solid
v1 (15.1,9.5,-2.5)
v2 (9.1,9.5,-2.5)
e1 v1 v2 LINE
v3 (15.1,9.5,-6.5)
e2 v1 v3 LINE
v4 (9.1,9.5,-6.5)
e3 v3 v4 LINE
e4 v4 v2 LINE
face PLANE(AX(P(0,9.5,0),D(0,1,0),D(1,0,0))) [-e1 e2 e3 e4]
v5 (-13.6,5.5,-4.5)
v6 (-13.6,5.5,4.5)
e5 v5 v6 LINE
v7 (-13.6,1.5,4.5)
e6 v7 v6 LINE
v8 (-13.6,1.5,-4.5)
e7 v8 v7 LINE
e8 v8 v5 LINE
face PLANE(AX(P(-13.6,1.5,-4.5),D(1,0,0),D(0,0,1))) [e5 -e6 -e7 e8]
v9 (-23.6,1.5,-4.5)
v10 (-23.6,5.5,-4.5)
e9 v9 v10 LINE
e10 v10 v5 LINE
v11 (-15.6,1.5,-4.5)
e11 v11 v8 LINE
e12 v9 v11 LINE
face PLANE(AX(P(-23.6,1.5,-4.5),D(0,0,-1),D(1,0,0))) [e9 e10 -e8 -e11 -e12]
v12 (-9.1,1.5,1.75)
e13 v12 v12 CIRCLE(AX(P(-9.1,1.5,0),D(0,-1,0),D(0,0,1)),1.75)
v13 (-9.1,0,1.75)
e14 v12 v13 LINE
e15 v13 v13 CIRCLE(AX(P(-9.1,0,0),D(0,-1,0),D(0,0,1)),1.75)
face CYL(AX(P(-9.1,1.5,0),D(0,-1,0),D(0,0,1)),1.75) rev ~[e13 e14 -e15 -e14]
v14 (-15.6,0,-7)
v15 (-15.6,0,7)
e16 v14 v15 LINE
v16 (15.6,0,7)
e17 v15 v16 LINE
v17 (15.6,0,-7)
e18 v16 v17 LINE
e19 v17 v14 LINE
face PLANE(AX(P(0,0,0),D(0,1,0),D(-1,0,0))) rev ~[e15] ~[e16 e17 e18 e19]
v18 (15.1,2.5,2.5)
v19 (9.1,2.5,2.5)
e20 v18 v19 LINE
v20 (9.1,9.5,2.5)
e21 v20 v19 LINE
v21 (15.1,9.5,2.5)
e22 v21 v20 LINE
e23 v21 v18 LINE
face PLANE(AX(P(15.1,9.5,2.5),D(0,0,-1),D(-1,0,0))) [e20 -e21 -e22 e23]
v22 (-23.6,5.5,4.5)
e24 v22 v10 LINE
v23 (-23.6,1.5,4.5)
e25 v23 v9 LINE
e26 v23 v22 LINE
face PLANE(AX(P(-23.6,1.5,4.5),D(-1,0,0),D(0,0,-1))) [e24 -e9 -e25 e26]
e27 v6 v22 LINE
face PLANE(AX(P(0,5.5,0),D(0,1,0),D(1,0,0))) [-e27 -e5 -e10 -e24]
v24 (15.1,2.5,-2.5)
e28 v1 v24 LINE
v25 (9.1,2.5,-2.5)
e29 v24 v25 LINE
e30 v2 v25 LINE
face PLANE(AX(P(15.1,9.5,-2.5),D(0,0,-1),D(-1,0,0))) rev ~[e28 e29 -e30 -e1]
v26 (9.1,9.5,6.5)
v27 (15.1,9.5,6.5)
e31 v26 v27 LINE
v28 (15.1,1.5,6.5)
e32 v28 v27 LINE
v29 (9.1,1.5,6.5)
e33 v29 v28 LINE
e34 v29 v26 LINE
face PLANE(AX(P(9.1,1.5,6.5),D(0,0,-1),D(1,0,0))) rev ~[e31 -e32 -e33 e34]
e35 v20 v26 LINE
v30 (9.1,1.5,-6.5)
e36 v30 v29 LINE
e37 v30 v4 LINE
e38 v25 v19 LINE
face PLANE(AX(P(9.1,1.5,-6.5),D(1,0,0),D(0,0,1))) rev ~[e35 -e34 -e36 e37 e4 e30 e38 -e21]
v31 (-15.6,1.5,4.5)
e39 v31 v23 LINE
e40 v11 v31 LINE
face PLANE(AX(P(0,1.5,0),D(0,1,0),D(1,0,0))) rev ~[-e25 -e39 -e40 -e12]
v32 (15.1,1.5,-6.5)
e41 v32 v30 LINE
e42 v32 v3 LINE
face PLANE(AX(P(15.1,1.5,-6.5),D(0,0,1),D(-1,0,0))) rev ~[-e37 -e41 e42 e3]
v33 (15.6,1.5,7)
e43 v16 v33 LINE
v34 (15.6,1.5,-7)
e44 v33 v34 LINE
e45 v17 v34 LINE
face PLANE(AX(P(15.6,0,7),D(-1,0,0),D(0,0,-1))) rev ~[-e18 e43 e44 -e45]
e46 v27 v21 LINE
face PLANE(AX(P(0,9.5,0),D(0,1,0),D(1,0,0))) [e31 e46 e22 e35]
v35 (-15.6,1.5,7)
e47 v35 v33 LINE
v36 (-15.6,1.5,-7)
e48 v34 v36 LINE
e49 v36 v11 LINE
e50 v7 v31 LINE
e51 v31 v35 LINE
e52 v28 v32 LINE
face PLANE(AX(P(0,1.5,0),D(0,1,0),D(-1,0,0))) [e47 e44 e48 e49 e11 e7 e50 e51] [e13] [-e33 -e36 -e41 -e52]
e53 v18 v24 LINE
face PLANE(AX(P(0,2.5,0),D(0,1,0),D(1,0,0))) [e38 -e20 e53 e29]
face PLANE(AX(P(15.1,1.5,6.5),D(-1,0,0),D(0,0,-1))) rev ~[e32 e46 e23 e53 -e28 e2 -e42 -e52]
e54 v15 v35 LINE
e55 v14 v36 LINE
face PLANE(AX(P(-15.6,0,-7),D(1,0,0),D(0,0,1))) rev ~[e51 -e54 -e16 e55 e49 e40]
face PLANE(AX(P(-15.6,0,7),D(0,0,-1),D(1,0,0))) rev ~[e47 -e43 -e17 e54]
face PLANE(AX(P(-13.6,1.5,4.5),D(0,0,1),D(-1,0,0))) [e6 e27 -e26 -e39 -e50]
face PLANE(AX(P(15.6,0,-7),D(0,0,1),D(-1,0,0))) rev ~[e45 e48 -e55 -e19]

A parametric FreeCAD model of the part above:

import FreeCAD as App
import Part
import Sketcher
Q = App.Units.Quantity

doc = App.newDocument("Part")
body = doc.addObject("PartDesign::Body", "Body")

sketch1 = body.newObject("Sketcher::SketchObject", "Sketch")
sketch1.AttachmentSupport = (doc.getObject("XZ_Plane"), [""])
sketch1.MapMode = "FlatFace"
sketch1.addGeometry(Part.LineSegment(App.Vector(-15.6, -7, 0), App.Vector(-15.6, 7, 0)), False)
sketch1.addGeometry(Part.LineSegment(App.Vector(-15.6, 7, 0), App.Vector(15.6, 7, 0)), False)
sketch1.addGeometry(Part.LineSegment(App.Vector(15.6, 7, 0), App.Vector(15.6, -7, 0)), False)
sketch1.addGeometry(Part.LineSegment(App.Vector(15.6, -7, 0), App.Vector(-15.6, -7, 0)), False)
sketch1.addConstraint(Sketcher.Constraint("Coincident", 0, 2, 1, 1))
sketch1.addConstraint(Sketcher.Constraint("Coincident", 1, 2, 2, 1))
sketch1.addConstraint(Sketcher.Constraint("Coincident", 2, 2, 3, 1))
sketch1.addConstraint(Sketcher.Constraint("Coincident", 3, 2, 0, 1))
sketch1.addConstraint(Sketcher.Constraint("Vertical", 0))
sketch1.addConstraint(Sketcher.Constraint("Horizontal", 1))
sketch1.addConstraint(Sketcher.Constraint("Vertical", 2))
sketch1.addConstraint(Sketcher.Constraint("Horizontal", 3))
sketch1.addConstraint(Sketcher.Constraint("Symmetric", 0, 2, 2, 2, -1, 1))
sketch1.addConstraint(Sketcher.Constraint("DistanceY", 0, 1, 0, 2, Q("14 mm")))
sketch1.addConstraint(Sketcher.Constraint("DistanceX", 1, 1, 1, 2, Q("31.2 mm")))
pad1 = body.newObject("PartDesign::Pad", "Pad")
pad1.Profile = sketch1
pad1.Length = 1.5
pad1.Reversed = True

sketch2 = body.newObject("Sketcher::SketchObject", "Sketch001")
sketch2.AttachmentSupport = (doc.getObject("XZ_Plane"), [""])
sketch2.MapMode = "FlatFace"
sketch2.AttachmentOffset = App.Placement(App.Vector(0, 0, -1.5), App.Rotation())
sketch2.addGeometry(Part.LineSegment(App.Vector(9.1, -6.5, 0), App.Vector(9.1, 6.5, 0)), False)
sketch2.addGeometry(Part.LineSegment(App.Vector(9.1, 6.5, 0), App.Vector(15.1, 6.5, 0)), False)
sketch2.addGeometry(Part.LineSegment(App.Vector(15.1, 6.5, 0), App.Vector(15.1, -6.5, 0)), False)
sketch2.addGeometry(Part.LineSegment(App.Vector(15.1, -6.5, 0), App.Vector(9.1, -6.5, 0)), False)
sketch2.addConstraint(Sketcher.Constraint("Coincident", 0, 2, 1, 1))
sketch2.addConstraint(Sketcher.Constraint("Coincident", 1, 2, 2, 1))
sketch2.addConstraint(Sketcher.Constraint("Coincident", 2, 2, 3, 1))
sketch2.addConstraint(Sketcher.Constraint("Coincident", 3, 2, 0, 1))
sketch2.addConstraint(Sketcher.Constraint("Vertical", 0))
sketch2.addConstraint(Sketcher.Constraint("Horizontal", 1))
sketch2.addConstraint(Sketcher.Constraint("Vertical", 2))
sketch2.addConstraint(Sketcher.Constraint("Horizontal", 3))
sketch2.addConstraint(Sketcher.Constraint("DistanceX", 1, 1, 1, 2, Q("6 mm")))
sketch2.addConstraint(Sketcher.Constraint("DistanceY", 0, 1, 0, 2, Q("13 mm")))
sketch2.addConstraint(Sketcher.Constraint("DistanceX", -1, 1, 0, 2, Q("9.1 mm")))
sketch2.addConstraint(Sketcher.Constraint("DistanceY", -1, 1, 0, 2, Q("6.5 mm")))
pad2 = body.newObject("PartDesign::Pad", "Pad001")
pad2.Profile = sketch2
pad2.Length = 8
pad2.Reversed = True

sketch3 = body.newObject("Sketcher::SketchObject", "Sketch002")
sketch3.AttachmentSupport = (doc.getObject("XZ_Plane"), [""])
sketch3.MapMode = "FlatFace"
sketch3.AttachmentOffset = App.Placement(App.Vector(0, 0, -9.5), App.Rotation())
sketch3.addGeometry(Part.LineSegment(App.Vector(9.1, -2.5, 0), App.Vector(9.1, 2.5, 0)), False)
sketch3.addGeometry(Part.LineSegment(App.Vector(9.1, 2.5, 0), App.Vector(15.1, 2.5, 0)), False)
sketch3.addGeometry(Part.LineSegment(App.Vector(15.1, 2.5, 0), App.Vector(15.1, -2.5, 0)), False)
sketch3.addGeometry(Part.LineSegment(App.Vector(15.1, -2.5, 0), App.Vector(9.1, -2.5, 0)), False)
sketch3.addConstraint(Sketcher.Constraint("Coincident", 0, 2, 1, 1))
sketch3.addConstraint(Sketcher.Constraint("Coincident", 1, 2, 2, 1))
sketch3.addConstraint(Sketcher.Constraint("Coincident", 2, 2, 3, 1))
sketch3.addConstraint(Sketcher.Constraint("Coincident", 3, 2, 0, 1))
sketch3.addConstraint(Sketcher.Constraint("Vertical", 0))
sketch3.addConstraint(Sketcher.Constraint("Horizontal", 1))
sketch3.addConstraint(Sketcher.Constraint("Vertical", 2))
sketch3.addConstraint(Sketcher.Constraint("Horizontal", 3))
sketch3.addConstraint(Sketcher.Constraint("DistanceX", 1, 1, 1, 2, Q("6 mm")))
sketch3.addConstraint(Sketcher.Constraint("DistanceY", 0, 1, 0, 2, Q("5 mm")))
sketch3.addConstraint(Sketcher.Constraint("DistanceX", -1, 1, 0, 2, Q("9.1 mm")))
sketch3.addConstraint(Sketcher.Constraint("DistanceY", -1, 1, 0, 2, Q("2.5 mm")))
pocket1 = body.newObject("PartDesign::Pocket", "Pocket")
pocket1.Profile = sketch3
pocket1.Length = 7
pocket1.Reversed = True

sketch4 = body.newObject("Sketcher::SketchObject", "Sketch003")
sketch4.AttachmentSupport = (doc.getObject("XZ_Plane"), [""])
sketch4.MapMode = "FlatFace"
sketch4.AttachmentOffset = App.Placement(App.Vector(0, 0, -1.5), App.Rotation())
sketch4.addGeometry(Part.Circle(App.Vector(-9.1, 0, 0), App.Vector(0, 0, 1), 1.75), False)
sketch4.addConstraint(Sketcher.Constraint("PointOnObject", 0, 3, -1))
sketch4.addConstraint(Sketcher.Constraint("Diameter", 0, Q("3.5 mm")))
sketch4.addConstraint(Sketcher.Constraint("DistanceX", 0, 3, -1, 1, Q("9.1 mm")))
doc.recompute()
hole = body.newObject("PartDesign::Hole", "Hole")
hole.Profile = sketch4
hole.ThreadType = "None"
hole.Diameter = 3.5
hole.DepthType = "ThroughAll"
hole.Reversed = True

sketch5 = body.newObject("Sketcher::SketchObject", "Sketch004")
sketch5.AttachmentSupport = (doc.getObject("XZ_Plane"), [""])
sketch5.MapMode = "FlatFace"
sketch5.AttachmentOffset = App.Placement(App.Vector(0, 0, -1.5), App.Rotation())
sketch5.addGeometry(Part.LineSegment(App.Vector(-13.6, -4.5, 0), App.Vector(-23.6, -4.5, 0)), False)
sketch5.addGeometry(Part.LineSegment(App.Vector(-23.6, -4.5, 0), App.Vector(-23.6, 4.5, 0)), False)
sketch5.addGeometry(Part.LineSegment(App.Vector(-23.6, 4.5, 0), App.Vector(-13.6, 4.5, 0)), False)
sketch5.addGeometry(Part.LineSegment(App.Vector(-13.6, 4.5, 0), App.Vector(-13.6, -4.5, 0)), False)
sketch5.addConstraint(Sketcher.Constraint("Coincident", 0, 2, 1, 1))
sketch5.addConstraint(Sketcher.Constraint("Coincident", 1, 2, 2, 1))
sketch5.addConstraint(Sketcher.Constraint("Coincident", 2, 2, 3, 1))
sketch5.addConstraint(Sketcher.Constraint("Coincident", 3, 2, 0, 1))
sketch5.addConstraint(Sketcher.Constraint("Horizontal", 0))
sketch5.addConstraint(Sketcher.Constraint("Vertical", 1))
sketch5.addConstraint(Sketcher.Constraint("Horizontal", 2))
sketch5.addConstraint(Sketcher.Constraint("Vertical", 3))
sketch5.addConstraint(Sketcher.Constraint("DistanceX", 0, 2, 0, 1, Q("10 mm")))
sketch5.addConstraint(Sketcher.Constraint("DistanceY", 1, 1, 1, 2, Q("9 mm")))
sketch5.addConstraint(Sketcher.Constraint("DistanceX", 0, 2, -1, 1, Q("23.6 mm")))
sketch5.addConstraint(Sketcher.Constraint("DistanceY", 0, 2, -1, 1, Q("4.5 mm")))
pad3 = body.newObject("PartDesign::Pad", "Pad002")
pad3.Profile = sketch5
pad3.Length = 4
pad3.Reversed = True

doc.recompute()
